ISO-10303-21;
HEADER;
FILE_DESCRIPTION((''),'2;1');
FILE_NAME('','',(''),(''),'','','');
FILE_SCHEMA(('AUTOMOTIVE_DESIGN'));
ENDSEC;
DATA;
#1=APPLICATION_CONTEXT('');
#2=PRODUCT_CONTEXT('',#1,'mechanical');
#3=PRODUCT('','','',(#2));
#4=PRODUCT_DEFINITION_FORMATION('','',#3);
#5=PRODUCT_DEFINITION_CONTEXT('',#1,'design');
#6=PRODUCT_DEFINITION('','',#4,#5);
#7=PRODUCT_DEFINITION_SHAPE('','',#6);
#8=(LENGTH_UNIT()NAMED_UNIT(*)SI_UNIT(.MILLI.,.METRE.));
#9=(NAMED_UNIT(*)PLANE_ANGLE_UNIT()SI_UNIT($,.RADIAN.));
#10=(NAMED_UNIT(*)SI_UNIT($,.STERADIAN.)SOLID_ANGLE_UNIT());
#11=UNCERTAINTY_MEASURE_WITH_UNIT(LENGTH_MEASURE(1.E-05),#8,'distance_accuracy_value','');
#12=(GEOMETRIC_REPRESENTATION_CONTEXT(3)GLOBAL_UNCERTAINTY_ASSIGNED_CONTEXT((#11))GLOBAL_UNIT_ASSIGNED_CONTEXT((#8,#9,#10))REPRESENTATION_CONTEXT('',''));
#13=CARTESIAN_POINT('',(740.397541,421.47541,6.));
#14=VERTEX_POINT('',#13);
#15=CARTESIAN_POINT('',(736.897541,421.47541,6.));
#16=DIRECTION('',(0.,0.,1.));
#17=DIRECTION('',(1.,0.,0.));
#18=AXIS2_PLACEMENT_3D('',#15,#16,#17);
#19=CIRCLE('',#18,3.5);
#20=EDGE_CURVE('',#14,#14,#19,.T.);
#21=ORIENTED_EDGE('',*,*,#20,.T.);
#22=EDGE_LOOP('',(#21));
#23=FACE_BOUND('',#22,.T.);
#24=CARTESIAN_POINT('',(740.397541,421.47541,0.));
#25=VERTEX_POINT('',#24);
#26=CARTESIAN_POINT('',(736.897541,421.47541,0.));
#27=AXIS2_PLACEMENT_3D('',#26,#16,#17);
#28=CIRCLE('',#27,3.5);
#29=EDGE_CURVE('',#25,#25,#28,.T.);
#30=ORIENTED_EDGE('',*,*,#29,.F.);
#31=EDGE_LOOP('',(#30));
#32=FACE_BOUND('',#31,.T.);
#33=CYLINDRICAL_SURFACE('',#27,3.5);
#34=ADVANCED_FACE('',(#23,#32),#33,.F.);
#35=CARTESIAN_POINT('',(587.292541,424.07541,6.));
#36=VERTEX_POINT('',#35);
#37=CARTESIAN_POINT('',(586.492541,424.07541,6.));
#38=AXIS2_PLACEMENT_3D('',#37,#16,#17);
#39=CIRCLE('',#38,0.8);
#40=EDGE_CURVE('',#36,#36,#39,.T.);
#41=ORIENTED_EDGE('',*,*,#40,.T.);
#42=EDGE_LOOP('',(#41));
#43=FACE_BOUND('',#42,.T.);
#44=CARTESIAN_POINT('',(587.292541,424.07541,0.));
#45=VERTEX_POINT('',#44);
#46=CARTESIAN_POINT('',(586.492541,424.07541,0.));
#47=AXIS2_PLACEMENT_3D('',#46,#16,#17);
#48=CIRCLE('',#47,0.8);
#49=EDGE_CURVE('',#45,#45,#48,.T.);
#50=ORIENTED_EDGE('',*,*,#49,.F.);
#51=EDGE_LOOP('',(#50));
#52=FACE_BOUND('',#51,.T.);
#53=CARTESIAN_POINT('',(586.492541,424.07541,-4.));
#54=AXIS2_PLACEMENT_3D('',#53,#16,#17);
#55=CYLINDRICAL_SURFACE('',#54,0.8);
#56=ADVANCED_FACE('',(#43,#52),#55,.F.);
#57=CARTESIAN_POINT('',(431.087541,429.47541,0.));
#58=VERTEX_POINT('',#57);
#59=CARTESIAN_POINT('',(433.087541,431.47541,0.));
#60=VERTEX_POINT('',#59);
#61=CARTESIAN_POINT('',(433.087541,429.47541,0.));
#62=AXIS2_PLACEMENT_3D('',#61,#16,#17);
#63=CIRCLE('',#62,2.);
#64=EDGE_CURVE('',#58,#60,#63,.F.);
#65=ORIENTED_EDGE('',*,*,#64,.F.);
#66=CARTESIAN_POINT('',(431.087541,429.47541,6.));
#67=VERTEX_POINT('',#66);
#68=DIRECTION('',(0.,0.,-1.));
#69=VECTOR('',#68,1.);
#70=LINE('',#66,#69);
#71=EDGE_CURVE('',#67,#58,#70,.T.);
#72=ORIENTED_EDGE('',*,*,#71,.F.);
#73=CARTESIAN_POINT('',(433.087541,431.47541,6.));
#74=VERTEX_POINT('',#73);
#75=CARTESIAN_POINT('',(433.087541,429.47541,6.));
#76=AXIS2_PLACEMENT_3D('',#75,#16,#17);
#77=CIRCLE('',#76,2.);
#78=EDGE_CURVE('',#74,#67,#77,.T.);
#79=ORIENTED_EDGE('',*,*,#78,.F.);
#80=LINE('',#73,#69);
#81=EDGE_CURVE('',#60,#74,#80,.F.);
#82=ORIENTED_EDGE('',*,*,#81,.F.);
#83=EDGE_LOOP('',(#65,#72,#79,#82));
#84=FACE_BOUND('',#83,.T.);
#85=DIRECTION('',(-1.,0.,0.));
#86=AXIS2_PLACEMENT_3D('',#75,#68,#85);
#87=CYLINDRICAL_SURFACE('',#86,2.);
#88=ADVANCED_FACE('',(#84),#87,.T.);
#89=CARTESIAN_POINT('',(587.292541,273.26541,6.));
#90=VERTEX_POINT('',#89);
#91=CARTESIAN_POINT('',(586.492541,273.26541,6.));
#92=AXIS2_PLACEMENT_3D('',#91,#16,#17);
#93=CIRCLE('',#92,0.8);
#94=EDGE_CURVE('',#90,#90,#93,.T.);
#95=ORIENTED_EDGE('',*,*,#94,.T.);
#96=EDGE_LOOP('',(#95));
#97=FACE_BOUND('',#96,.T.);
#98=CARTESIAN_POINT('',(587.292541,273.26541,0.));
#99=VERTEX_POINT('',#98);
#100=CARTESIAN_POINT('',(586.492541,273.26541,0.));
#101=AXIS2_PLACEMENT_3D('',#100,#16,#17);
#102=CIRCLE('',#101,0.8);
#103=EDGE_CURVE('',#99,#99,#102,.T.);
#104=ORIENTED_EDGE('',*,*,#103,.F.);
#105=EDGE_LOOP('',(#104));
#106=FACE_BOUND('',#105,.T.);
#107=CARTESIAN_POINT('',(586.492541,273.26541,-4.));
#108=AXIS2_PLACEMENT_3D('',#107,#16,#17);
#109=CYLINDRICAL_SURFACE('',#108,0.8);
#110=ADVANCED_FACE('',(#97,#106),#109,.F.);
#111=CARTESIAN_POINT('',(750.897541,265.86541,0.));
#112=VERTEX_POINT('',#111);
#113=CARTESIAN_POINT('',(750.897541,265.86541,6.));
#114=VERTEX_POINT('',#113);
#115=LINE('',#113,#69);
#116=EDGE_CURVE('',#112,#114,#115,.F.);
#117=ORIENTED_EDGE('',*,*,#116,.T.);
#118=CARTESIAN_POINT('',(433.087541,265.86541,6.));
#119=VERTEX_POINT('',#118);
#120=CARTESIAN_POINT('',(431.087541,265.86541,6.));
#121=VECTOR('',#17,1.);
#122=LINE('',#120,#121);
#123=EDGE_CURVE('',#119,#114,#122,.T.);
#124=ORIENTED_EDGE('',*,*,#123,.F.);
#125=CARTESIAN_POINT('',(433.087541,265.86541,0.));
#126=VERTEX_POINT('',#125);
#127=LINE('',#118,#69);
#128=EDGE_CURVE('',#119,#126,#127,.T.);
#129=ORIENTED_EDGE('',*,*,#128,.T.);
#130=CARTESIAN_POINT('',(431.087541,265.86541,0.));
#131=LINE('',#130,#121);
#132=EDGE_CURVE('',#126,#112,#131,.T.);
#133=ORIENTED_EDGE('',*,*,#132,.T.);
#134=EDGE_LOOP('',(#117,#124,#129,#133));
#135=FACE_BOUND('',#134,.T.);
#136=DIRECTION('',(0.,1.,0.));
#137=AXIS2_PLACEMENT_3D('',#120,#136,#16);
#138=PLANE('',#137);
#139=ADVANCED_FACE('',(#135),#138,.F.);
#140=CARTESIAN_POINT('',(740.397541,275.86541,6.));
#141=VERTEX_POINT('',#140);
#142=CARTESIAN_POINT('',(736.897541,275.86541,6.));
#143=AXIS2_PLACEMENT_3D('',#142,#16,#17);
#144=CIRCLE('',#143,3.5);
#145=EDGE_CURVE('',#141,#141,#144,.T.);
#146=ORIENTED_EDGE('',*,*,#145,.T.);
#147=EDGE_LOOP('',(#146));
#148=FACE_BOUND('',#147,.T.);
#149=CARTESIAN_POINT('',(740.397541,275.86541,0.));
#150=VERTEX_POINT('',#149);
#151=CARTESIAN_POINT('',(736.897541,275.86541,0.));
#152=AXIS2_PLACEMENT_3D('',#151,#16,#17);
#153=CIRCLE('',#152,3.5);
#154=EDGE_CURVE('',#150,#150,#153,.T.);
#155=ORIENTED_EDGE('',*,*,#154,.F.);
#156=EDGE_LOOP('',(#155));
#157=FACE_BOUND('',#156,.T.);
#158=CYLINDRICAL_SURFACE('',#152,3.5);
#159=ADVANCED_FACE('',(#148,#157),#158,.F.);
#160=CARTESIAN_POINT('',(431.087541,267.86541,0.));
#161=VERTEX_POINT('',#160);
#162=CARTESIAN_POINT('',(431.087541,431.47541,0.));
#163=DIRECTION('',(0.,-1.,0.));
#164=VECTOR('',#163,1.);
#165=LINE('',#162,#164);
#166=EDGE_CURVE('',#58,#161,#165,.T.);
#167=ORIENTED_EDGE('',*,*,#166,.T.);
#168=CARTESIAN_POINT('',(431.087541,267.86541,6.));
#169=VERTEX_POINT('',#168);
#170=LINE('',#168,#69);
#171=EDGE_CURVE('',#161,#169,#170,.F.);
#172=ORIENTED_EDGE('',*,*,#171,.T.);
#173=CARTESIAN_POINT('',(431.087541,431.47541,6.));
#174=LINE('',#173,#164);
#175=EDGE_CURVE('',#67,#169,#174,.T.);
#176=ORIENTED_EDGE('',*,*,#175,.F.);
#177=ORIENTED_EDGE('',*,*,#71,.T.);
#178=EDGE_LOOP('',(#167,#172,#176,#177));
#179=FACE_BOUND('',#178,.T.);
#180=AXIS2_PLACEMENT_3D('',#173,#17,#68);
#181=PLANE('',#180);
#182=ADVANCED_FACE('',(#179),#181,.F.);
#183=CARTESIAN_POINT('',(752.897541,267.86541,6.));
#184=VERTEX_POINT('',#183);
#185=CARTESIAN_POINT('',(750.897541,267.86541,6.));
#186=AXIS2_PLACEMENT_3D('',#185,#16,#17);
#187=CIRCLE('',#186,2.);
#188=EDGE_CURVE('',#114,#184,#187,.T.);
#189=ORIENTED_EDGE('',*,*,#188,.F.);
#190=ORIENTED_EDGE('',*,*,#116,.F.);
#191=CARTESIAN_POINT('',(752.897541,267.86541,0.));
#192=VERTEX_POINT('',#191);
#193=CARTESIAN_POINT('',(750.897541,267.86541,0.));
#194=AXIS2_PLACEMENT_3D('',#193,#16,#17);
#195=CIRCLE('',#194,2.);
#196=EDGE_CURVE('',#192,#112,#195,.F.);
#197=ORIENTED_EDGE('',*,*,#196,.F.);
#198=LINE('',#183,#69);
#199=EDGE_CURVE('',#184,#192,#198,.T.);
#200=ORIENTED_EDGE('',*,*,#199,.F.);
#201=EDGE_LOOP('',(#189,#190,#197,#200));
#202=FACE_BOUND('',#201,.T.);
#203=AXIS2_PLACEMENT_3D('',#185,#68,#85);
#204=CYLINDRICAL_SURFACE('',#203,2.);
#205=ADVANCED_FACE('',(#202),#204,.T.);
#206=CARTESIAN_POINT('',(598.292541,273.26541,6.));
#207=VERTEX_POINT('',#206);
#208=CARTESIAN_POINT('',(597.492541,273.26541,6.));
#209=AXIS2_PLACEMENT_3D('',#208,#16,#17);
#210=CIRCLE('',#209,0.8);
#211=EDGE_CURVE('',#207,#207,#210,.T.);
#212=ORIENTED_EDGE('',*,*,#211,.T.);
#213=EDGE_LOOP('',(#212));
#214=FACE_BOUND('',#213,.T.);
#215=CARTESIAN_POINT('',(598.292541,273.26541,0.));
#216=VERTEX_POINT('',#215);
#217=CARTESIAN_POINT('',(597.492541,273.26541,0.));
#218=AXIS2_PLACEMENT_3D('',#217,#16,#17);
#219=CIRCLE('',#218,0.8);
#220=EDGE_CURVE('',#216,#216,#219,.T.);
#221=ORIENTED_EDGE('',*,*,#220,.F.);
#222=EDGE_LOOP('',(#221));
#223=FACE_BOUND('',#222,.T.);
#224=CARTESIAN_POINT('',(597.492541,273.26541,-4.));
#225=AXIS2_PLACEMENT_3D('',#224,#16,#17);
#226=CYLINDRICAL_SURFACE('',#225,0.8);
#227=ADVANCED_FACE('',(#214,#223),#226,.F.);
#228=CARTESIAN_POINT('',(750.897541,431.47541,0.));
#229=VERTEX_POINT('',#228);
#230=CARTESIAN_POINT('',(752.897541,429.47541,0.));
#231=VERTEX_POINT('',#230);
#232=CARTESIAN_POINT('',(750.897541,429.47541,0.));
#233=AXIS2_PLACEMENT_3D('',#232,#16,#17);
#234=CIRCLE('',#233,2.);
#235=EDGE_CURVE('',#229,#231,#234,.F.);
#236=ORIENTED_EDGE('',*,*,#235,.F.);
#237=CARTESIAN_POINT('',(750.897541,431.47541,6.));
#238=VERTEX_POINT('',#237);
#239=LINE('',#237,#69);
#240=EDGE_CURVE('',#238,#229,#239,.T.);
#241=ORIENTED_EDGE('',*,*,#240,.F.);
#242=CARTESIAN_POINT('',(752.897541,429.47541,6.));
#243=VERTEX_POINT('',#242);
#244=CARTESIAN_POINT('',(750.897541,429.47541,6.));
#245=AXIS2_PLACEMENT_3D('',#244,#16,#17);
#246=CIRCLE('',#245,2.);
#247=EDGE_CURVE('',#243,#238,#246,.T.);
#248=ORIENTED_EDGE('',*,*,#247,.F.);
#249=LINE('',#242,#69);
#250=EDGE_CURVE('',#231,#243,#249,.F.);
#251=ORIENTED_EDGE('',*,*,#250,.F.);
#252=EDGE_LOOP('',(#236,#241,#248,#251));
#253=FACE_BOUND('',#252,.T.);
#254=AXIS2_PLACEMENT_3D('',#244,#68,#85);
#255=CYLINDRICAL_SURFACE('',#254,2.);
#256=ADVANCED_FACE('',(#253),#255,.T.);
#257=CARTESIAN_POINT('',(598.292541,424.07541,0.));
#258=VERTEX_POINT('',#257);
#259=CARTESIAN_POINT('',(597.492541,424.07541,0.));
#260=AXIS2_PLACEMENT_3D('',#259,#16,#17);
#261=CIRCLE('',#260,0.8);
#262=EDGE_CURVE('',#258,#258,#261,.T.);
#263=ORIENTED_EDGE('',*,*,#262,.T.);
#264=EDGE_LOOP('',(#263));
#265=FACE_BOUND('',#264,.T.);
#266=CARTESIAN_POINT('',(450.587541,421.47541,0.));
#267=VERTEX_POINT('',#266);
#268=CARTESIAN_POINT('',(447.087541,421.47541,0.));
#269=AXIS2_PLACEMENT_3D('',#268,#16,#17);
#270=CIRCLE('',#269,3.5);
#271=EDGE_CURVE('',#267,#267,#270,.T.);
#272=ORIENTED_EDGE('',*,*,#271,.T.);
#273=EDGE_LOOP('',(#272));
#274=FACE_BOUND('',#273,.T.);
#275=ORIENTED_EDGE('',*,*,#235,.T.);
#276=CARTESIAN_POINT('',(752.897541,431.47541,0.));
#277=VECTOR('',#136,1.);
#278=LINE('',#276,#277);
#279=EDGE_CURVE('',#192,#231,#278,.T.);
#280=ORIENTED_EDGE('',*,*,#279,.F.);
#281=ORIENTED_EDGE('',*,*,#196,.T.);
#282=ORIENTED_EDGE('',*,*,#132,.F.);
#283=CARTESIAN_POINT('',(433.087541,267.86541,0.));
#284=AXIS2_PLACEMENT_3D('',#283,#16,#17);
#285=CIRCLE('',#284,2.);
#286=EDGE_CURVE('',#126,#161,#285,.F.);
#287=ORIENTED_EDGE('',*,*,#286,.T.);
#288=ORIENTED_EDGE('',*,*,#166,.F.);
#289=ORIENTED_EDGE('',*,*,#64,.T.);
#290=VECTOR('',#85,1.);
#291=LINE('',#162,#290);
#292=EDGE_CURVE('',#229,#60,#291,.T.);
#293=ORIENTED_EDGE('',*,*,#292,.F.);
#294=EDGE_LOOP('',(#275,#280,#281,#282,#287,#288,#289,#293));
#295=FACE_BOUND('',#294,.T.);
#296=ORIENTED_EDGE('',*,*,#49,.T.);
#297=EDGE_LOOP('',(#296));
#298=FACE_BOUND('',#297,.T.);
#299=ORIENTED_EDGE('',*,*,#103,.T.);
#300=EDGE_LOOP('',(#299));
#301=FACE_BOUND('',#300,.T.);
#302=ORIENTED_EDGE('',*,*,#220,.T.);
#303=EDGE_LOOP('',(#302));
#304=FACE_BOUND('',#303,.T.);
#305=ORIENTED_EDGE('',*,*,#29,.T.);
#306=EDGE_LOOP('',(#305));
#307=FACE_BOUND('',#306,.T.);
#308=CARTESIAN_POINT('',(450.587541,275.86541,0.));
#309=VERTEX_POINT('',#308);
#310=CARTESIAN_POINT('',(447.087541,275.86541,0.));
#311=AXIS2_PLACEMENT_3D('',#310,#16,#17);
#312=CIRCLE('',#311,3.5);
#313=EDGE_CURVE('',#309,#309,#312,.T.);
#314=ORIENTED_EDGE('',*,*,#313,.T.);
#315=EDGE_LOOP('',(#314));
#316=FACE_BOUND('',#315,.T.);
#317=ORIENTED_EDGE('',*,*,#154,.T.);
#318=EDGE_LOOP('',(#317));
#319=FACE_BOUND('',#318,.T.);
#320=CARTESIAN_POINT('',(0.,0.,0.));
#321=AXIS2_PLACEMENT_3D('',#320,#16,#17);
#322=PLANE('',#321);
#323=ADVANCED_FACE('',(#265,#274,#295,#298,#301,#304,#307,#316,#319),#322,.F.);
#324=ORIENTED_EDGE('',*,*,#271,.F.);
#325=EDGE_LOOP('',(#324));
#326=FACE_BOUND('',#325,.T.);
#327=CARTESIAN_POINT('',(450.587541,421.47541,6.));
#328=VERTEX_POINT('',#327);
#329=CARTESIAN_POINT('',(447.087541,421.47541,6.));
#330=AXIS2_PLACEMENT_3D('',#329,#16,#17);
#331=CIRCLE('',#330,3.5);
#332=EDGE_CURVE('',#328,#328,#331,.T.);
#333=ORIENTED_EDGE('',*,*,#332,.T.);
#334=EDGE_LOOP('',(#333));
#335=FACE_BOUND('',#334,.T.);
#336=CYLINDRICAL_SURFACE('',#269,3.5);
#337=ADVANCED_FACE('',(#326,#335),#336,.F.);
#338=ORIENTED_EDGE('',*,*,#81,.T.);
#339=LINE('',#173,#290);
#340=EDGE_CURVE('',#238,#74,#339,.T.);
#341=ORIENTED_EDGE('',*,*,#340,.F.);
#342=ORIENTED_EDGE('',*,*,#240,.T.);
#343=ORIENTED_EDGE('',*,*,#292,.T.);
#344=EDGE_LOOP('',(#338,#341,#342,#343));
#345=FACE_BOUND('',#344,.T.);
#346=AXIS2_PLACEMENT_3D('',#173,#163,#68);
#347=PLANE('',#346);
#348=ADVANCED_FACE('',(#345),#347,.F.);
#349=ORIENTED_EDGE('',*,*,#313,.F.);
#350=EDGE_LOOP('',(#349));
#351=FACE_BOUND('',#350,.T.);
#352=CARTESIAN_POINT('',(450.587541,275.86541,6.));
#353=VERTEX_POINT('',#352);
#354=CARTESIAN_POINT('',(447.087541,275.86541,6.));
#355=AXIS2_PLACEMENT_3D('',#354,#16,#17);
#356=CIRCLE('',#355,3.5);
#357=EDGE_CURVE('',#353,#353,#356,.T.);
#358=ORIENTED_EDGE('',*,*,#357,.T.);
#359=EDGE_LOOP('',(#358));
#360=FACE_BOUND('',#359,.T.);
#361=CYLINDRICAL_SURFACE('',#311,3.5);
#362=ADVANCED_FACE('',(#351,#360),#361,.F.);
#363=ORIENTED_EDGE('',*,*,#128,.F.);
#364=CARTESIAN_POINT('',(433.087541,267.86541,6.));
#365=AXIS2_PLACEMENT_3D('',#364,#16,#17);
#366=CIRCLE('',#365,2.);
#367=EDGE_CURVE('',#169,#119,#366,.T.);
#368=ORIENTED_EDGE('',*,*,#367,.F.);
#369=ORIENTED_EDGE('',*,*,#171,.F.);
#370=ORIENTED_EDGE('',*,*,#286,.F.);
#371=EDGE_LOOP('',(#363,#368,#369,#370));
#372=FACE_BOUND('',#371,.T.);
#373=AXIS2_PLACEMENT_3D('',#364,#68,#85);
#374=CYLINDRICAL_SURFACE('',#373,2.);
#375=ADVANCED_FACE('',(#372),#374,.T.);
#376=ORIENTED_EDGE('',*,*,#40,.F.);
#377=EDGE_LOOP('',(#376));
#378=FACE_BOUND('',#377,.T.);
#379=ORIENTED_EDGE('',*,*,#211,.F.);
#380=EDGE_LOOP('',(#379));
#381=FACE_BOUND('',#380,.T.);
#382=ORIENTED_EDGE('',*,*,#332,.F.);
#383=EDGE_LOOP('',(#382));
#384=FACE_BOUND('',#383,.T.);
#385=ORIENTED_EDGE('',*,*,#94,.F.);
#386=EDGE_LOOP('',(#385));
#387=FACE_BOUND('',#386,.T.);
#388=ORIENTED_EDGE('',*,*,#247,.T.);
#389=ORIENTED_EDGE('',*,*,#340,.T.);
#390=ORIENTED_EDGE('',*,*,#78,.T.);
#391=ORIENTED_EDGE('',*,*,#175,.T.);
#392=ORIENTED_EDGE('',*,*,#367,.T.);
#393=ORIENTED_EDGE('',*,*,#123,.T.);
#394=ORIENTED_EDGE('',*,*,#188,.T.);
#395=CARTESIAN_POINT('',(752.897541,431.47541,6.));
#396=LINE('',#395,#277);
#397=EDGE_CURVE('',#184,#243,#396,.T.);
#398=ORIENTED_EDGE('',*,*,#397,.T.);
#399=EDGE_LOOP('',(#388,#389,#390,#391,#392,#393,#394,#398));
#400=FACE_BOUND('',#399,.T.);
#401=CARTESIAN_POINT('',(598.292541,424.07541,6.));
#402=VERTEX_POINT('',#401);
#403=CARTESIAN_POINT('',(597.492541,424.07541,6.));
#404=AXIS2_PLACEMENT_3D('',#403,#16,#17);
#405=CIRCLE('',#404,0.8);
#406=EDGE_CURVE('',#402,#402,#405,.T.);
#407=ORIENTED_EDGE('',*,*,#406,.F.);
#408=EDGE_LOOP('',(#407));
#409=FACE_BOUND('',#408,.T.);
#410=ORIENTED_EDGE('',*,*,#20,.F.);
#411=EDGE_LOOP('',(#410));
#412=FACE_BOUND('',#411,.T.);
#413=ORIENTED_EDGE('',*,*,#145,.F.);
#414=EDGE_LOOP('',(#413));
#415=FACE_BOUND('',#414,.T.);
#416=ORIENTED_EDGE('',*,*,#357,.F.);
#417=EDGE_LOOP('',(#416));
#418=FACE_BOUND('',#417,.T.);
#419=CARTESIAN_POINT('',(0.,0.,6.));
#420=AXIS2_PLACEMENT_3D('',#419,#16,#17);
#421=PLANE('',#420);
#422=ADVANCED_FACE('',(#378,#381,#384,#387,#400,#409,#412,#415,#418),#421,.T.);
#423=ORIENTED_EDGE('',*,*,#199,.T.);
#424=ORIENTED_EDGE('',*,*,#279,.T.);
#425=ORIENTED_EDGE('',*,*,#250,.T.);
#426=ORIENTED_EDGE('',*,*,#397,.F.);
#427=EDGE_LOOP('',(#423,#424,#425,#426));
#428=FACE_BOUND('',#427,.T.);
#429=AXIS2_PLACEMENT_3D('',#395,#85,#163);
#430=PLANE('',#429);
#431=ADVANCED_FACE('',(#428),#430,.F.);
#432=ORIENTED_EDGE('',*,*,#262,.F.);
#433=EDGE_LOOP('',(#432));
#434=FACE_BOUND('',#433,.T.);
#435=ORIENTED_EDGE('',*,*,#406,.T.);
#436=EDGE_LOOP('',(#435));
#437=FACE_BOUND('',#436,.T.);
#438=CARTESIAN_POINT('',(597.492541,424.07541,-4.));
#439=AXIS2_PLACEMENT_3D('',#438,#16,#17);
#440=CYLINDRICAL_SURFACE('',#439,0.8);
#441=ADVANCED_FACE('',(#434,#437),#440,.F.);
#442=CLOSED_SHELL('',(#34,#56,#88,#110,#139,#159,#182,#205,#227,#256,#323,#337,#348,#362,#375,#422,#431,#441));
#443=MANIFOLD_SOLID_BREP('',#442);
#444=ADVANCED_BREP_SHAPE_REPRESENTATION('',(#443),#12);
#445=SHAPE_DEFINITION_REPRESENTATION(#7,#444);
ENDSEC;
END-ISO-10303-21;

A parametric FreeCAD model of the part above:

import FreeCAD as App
import Part
import Sketcher

V = App.Vector


def edges_at(feature, points):
    """Names of the edges that pass closest to the given points."""
    edges = feature.Shape.Edges
    near = lambda p: min(range(len(edges)), key=lambda i: edges[i].distToShape(Part.Vertex(*p))[0])
    return sorted({f"Edge{near(p) + 1}" for p in points})

doc = App.newDocument("Part")
body = doc.addObject("PartDesign::Body", "Body")

# Sketch on XY plane
sketch1 = body.newObject("Sketcher::SketchObject", "Sketch")
sketch1.AttachmentSupport = (doc.getObject("XY_Plane"), [""])
sketch1.MapMode = "FlatFace"
sketch1.addGeometry([
    Part.LineSegment(V(431, 431, 0), V(431, 266, 0)),
    Part.LineSegment(V(431, 266, 0), V(753, 266, 0)),
    Part.LineSegment(V(753, 266, 0), V(753, 431, 0)),
    Part.LineSegment(V(753, 431, 0), V(431, 431, 0)),
], False)
sketch1.addConstraint([
    Sketcher.Constraint("Coincident", 0, 2, 1, 1),
    Sketcher.Constraint("Coincident", 1, 2, 2, 1),
    Sketcher.Constraint("Coincident", 2, 2, 3, 1),
    Sketcher.Constraint("Coincident", 3, 2, 0, 1),
    Sketcher.Constraint("Vertical", 0),
    Sketcher.Constraint("Horizontal", 1),
    Sketcher.Constraint("Vertical", 2),
    Sketcher.Constraint("Horizontal", 3),
    Sketcher.Constraint("DistanceX", 1, 1, 1, 2, 321.81),
    Sketcher.Constraint("DistanceY", 0, 2, 0, 1, 165.61),
    Sketcher.Constraint("DistanceX", -1, 1, 0, 2, 431.087541),
    Sketcher.Constraint("DistanceY", -1, 1, 0, 2, 265.86541),
])
pad1 = body.newObject("PartDesign::Pad", "Pad")
pad1.Profile = sketch1
pad1.Length = 6

# Sketch on XY plane
sketch2 = body.newObject("Sketcher::SketchObject", "Sketch001")
sketch2.AttachmentSupport = (doc.getObject("XY_Plane"), [""])
sketch2.MapMode = "FlatFace"
sketch2.AttachmentOffset = App.Placement(V(0, 0, 6), App.Rotation())
sketch2.addGeometry([
    Part.Circle(V(447.1, 421.5, 0), V(0, 0, 1), 3.5),
    Part.Circle(V(736.9, 421.5, 0), V(0, 0, 1), 3.5),
    Part.Circle(V(736.9, 275.9, 0), V(0, 0, 1), 3.5),
    Part.Circle(V(447.1, 275.9, 0), V(0, 0, 1), 3.5),
], False)
sketch2.addConstraint([
    Sketcher.Constraint("Equal", 0, 1),
    Sketcher.Constraint("Equal", 1, 2),
    Sketcher.Constraint("Equal", 2, 3),
    Sketcher.Constraint("Horizontal", 0, 3, 1, 3),
    Sketcher.Constraint("Horizontal", 2, 3, 3, 3),
    Sketcher.Constraint("Vertical", 1, 3, 2, 3),
    Sketcher.Constraint("Vertical", 0, 3, 3, 3),
    Sketcher.Constraint("Diameter", 0, 7.0),
    Sketcher.Constraint("DistanceX", 0, 3, 1, 3, 289.81),
    Sketcher.Constraint("DistanceY", 2, 3, 1, 3, 145.61),
    Sketcher.Constraint("DistanceX", -1, 1, 0, 3, 447.087541),
    Sketcher.Constraint("DistanceY", -1, 1, 0, 3, 421.47541),
])
pocket1 = body.newObject("PartDesign::Pocket", "Pocket")
pocket1.Profile = sketch2
pocket1.Type = "ThroughAll"

# Sketch on XY plane
sketch3 = body.newObject("Sketcher::SketchObject", "Sketch002")
sketch3.AttachmentSupport = (doc.getObject("XY_Plane"), [""])
sketch3.MapMode = "FlatFace"
sketch3.AttachmentOffset = App.Placement(V(0, 0, 6), App.Rotation())
sketch3.addGeometry([
    Part.Circle(V(586.5, 424.1, 0), V(0, 0, 1), 0.8),
    Part.Circle(V(597.5, 424.1, 0), V(0, 0, 1), 0.8),
    Part.Circle(V(586.5, 273.3, 0), V(0, 0, 1), 0.8),
    Part.Circle(V(597.5, 273.3, 0), V(0, 0, 1), 0.8),
], False)
sketch3.addConstraint([
    Sketcher.Constraint("Equal", 0, 1),
    Sketcher.Constraint("Equal", 1, 2),
    Sketcher.Constraint("Equal", 2, 3),
    Sketcher.Constraint("Horizontal", 0, 3, 1, 3),
    Sketcher.Constraint("Horizontal", 2, 3, 3, 3),
    Sketcher.Constraint("Vertical", 0, 3, 2, 3),
    Sketcher.Constraint("Vertical", 1, 3, 3, 3),
    Sketcher.Constraint("Diameter", 0, 1.6),
    Sketcher.Constraint("DistanceX", 0, 3, 1, 3, 11.0),
    Sketcher.Constraint("DistanceY", 2, 3, 0, 3, 150.81),
    Sketcher.Constraint("DistanceX", -1, 1, 0, 3, 586.492541),
    Sketcher.Constraint("DistanceY", -1, 1, 0, 3, 424.07541),
])
pocket2 = body.newObject("PartDesign::Pocket", "Pocket001")
pocket2.Profile = sketch3
pocket2.Length = 10
doc.recompute()

fillet = body.newObject("PartDesign::Fillet", "Fillet")
fillet.Base = (pocket2, edges_at(pocket2, [
    (431.088, 431.475, 3),
    (752.898, 431.475, 3),
    (752.898, 265.865, 3),
    (431.088, 265.865, 3),
]))
fillet.Radius = 2

doc.recompute()
